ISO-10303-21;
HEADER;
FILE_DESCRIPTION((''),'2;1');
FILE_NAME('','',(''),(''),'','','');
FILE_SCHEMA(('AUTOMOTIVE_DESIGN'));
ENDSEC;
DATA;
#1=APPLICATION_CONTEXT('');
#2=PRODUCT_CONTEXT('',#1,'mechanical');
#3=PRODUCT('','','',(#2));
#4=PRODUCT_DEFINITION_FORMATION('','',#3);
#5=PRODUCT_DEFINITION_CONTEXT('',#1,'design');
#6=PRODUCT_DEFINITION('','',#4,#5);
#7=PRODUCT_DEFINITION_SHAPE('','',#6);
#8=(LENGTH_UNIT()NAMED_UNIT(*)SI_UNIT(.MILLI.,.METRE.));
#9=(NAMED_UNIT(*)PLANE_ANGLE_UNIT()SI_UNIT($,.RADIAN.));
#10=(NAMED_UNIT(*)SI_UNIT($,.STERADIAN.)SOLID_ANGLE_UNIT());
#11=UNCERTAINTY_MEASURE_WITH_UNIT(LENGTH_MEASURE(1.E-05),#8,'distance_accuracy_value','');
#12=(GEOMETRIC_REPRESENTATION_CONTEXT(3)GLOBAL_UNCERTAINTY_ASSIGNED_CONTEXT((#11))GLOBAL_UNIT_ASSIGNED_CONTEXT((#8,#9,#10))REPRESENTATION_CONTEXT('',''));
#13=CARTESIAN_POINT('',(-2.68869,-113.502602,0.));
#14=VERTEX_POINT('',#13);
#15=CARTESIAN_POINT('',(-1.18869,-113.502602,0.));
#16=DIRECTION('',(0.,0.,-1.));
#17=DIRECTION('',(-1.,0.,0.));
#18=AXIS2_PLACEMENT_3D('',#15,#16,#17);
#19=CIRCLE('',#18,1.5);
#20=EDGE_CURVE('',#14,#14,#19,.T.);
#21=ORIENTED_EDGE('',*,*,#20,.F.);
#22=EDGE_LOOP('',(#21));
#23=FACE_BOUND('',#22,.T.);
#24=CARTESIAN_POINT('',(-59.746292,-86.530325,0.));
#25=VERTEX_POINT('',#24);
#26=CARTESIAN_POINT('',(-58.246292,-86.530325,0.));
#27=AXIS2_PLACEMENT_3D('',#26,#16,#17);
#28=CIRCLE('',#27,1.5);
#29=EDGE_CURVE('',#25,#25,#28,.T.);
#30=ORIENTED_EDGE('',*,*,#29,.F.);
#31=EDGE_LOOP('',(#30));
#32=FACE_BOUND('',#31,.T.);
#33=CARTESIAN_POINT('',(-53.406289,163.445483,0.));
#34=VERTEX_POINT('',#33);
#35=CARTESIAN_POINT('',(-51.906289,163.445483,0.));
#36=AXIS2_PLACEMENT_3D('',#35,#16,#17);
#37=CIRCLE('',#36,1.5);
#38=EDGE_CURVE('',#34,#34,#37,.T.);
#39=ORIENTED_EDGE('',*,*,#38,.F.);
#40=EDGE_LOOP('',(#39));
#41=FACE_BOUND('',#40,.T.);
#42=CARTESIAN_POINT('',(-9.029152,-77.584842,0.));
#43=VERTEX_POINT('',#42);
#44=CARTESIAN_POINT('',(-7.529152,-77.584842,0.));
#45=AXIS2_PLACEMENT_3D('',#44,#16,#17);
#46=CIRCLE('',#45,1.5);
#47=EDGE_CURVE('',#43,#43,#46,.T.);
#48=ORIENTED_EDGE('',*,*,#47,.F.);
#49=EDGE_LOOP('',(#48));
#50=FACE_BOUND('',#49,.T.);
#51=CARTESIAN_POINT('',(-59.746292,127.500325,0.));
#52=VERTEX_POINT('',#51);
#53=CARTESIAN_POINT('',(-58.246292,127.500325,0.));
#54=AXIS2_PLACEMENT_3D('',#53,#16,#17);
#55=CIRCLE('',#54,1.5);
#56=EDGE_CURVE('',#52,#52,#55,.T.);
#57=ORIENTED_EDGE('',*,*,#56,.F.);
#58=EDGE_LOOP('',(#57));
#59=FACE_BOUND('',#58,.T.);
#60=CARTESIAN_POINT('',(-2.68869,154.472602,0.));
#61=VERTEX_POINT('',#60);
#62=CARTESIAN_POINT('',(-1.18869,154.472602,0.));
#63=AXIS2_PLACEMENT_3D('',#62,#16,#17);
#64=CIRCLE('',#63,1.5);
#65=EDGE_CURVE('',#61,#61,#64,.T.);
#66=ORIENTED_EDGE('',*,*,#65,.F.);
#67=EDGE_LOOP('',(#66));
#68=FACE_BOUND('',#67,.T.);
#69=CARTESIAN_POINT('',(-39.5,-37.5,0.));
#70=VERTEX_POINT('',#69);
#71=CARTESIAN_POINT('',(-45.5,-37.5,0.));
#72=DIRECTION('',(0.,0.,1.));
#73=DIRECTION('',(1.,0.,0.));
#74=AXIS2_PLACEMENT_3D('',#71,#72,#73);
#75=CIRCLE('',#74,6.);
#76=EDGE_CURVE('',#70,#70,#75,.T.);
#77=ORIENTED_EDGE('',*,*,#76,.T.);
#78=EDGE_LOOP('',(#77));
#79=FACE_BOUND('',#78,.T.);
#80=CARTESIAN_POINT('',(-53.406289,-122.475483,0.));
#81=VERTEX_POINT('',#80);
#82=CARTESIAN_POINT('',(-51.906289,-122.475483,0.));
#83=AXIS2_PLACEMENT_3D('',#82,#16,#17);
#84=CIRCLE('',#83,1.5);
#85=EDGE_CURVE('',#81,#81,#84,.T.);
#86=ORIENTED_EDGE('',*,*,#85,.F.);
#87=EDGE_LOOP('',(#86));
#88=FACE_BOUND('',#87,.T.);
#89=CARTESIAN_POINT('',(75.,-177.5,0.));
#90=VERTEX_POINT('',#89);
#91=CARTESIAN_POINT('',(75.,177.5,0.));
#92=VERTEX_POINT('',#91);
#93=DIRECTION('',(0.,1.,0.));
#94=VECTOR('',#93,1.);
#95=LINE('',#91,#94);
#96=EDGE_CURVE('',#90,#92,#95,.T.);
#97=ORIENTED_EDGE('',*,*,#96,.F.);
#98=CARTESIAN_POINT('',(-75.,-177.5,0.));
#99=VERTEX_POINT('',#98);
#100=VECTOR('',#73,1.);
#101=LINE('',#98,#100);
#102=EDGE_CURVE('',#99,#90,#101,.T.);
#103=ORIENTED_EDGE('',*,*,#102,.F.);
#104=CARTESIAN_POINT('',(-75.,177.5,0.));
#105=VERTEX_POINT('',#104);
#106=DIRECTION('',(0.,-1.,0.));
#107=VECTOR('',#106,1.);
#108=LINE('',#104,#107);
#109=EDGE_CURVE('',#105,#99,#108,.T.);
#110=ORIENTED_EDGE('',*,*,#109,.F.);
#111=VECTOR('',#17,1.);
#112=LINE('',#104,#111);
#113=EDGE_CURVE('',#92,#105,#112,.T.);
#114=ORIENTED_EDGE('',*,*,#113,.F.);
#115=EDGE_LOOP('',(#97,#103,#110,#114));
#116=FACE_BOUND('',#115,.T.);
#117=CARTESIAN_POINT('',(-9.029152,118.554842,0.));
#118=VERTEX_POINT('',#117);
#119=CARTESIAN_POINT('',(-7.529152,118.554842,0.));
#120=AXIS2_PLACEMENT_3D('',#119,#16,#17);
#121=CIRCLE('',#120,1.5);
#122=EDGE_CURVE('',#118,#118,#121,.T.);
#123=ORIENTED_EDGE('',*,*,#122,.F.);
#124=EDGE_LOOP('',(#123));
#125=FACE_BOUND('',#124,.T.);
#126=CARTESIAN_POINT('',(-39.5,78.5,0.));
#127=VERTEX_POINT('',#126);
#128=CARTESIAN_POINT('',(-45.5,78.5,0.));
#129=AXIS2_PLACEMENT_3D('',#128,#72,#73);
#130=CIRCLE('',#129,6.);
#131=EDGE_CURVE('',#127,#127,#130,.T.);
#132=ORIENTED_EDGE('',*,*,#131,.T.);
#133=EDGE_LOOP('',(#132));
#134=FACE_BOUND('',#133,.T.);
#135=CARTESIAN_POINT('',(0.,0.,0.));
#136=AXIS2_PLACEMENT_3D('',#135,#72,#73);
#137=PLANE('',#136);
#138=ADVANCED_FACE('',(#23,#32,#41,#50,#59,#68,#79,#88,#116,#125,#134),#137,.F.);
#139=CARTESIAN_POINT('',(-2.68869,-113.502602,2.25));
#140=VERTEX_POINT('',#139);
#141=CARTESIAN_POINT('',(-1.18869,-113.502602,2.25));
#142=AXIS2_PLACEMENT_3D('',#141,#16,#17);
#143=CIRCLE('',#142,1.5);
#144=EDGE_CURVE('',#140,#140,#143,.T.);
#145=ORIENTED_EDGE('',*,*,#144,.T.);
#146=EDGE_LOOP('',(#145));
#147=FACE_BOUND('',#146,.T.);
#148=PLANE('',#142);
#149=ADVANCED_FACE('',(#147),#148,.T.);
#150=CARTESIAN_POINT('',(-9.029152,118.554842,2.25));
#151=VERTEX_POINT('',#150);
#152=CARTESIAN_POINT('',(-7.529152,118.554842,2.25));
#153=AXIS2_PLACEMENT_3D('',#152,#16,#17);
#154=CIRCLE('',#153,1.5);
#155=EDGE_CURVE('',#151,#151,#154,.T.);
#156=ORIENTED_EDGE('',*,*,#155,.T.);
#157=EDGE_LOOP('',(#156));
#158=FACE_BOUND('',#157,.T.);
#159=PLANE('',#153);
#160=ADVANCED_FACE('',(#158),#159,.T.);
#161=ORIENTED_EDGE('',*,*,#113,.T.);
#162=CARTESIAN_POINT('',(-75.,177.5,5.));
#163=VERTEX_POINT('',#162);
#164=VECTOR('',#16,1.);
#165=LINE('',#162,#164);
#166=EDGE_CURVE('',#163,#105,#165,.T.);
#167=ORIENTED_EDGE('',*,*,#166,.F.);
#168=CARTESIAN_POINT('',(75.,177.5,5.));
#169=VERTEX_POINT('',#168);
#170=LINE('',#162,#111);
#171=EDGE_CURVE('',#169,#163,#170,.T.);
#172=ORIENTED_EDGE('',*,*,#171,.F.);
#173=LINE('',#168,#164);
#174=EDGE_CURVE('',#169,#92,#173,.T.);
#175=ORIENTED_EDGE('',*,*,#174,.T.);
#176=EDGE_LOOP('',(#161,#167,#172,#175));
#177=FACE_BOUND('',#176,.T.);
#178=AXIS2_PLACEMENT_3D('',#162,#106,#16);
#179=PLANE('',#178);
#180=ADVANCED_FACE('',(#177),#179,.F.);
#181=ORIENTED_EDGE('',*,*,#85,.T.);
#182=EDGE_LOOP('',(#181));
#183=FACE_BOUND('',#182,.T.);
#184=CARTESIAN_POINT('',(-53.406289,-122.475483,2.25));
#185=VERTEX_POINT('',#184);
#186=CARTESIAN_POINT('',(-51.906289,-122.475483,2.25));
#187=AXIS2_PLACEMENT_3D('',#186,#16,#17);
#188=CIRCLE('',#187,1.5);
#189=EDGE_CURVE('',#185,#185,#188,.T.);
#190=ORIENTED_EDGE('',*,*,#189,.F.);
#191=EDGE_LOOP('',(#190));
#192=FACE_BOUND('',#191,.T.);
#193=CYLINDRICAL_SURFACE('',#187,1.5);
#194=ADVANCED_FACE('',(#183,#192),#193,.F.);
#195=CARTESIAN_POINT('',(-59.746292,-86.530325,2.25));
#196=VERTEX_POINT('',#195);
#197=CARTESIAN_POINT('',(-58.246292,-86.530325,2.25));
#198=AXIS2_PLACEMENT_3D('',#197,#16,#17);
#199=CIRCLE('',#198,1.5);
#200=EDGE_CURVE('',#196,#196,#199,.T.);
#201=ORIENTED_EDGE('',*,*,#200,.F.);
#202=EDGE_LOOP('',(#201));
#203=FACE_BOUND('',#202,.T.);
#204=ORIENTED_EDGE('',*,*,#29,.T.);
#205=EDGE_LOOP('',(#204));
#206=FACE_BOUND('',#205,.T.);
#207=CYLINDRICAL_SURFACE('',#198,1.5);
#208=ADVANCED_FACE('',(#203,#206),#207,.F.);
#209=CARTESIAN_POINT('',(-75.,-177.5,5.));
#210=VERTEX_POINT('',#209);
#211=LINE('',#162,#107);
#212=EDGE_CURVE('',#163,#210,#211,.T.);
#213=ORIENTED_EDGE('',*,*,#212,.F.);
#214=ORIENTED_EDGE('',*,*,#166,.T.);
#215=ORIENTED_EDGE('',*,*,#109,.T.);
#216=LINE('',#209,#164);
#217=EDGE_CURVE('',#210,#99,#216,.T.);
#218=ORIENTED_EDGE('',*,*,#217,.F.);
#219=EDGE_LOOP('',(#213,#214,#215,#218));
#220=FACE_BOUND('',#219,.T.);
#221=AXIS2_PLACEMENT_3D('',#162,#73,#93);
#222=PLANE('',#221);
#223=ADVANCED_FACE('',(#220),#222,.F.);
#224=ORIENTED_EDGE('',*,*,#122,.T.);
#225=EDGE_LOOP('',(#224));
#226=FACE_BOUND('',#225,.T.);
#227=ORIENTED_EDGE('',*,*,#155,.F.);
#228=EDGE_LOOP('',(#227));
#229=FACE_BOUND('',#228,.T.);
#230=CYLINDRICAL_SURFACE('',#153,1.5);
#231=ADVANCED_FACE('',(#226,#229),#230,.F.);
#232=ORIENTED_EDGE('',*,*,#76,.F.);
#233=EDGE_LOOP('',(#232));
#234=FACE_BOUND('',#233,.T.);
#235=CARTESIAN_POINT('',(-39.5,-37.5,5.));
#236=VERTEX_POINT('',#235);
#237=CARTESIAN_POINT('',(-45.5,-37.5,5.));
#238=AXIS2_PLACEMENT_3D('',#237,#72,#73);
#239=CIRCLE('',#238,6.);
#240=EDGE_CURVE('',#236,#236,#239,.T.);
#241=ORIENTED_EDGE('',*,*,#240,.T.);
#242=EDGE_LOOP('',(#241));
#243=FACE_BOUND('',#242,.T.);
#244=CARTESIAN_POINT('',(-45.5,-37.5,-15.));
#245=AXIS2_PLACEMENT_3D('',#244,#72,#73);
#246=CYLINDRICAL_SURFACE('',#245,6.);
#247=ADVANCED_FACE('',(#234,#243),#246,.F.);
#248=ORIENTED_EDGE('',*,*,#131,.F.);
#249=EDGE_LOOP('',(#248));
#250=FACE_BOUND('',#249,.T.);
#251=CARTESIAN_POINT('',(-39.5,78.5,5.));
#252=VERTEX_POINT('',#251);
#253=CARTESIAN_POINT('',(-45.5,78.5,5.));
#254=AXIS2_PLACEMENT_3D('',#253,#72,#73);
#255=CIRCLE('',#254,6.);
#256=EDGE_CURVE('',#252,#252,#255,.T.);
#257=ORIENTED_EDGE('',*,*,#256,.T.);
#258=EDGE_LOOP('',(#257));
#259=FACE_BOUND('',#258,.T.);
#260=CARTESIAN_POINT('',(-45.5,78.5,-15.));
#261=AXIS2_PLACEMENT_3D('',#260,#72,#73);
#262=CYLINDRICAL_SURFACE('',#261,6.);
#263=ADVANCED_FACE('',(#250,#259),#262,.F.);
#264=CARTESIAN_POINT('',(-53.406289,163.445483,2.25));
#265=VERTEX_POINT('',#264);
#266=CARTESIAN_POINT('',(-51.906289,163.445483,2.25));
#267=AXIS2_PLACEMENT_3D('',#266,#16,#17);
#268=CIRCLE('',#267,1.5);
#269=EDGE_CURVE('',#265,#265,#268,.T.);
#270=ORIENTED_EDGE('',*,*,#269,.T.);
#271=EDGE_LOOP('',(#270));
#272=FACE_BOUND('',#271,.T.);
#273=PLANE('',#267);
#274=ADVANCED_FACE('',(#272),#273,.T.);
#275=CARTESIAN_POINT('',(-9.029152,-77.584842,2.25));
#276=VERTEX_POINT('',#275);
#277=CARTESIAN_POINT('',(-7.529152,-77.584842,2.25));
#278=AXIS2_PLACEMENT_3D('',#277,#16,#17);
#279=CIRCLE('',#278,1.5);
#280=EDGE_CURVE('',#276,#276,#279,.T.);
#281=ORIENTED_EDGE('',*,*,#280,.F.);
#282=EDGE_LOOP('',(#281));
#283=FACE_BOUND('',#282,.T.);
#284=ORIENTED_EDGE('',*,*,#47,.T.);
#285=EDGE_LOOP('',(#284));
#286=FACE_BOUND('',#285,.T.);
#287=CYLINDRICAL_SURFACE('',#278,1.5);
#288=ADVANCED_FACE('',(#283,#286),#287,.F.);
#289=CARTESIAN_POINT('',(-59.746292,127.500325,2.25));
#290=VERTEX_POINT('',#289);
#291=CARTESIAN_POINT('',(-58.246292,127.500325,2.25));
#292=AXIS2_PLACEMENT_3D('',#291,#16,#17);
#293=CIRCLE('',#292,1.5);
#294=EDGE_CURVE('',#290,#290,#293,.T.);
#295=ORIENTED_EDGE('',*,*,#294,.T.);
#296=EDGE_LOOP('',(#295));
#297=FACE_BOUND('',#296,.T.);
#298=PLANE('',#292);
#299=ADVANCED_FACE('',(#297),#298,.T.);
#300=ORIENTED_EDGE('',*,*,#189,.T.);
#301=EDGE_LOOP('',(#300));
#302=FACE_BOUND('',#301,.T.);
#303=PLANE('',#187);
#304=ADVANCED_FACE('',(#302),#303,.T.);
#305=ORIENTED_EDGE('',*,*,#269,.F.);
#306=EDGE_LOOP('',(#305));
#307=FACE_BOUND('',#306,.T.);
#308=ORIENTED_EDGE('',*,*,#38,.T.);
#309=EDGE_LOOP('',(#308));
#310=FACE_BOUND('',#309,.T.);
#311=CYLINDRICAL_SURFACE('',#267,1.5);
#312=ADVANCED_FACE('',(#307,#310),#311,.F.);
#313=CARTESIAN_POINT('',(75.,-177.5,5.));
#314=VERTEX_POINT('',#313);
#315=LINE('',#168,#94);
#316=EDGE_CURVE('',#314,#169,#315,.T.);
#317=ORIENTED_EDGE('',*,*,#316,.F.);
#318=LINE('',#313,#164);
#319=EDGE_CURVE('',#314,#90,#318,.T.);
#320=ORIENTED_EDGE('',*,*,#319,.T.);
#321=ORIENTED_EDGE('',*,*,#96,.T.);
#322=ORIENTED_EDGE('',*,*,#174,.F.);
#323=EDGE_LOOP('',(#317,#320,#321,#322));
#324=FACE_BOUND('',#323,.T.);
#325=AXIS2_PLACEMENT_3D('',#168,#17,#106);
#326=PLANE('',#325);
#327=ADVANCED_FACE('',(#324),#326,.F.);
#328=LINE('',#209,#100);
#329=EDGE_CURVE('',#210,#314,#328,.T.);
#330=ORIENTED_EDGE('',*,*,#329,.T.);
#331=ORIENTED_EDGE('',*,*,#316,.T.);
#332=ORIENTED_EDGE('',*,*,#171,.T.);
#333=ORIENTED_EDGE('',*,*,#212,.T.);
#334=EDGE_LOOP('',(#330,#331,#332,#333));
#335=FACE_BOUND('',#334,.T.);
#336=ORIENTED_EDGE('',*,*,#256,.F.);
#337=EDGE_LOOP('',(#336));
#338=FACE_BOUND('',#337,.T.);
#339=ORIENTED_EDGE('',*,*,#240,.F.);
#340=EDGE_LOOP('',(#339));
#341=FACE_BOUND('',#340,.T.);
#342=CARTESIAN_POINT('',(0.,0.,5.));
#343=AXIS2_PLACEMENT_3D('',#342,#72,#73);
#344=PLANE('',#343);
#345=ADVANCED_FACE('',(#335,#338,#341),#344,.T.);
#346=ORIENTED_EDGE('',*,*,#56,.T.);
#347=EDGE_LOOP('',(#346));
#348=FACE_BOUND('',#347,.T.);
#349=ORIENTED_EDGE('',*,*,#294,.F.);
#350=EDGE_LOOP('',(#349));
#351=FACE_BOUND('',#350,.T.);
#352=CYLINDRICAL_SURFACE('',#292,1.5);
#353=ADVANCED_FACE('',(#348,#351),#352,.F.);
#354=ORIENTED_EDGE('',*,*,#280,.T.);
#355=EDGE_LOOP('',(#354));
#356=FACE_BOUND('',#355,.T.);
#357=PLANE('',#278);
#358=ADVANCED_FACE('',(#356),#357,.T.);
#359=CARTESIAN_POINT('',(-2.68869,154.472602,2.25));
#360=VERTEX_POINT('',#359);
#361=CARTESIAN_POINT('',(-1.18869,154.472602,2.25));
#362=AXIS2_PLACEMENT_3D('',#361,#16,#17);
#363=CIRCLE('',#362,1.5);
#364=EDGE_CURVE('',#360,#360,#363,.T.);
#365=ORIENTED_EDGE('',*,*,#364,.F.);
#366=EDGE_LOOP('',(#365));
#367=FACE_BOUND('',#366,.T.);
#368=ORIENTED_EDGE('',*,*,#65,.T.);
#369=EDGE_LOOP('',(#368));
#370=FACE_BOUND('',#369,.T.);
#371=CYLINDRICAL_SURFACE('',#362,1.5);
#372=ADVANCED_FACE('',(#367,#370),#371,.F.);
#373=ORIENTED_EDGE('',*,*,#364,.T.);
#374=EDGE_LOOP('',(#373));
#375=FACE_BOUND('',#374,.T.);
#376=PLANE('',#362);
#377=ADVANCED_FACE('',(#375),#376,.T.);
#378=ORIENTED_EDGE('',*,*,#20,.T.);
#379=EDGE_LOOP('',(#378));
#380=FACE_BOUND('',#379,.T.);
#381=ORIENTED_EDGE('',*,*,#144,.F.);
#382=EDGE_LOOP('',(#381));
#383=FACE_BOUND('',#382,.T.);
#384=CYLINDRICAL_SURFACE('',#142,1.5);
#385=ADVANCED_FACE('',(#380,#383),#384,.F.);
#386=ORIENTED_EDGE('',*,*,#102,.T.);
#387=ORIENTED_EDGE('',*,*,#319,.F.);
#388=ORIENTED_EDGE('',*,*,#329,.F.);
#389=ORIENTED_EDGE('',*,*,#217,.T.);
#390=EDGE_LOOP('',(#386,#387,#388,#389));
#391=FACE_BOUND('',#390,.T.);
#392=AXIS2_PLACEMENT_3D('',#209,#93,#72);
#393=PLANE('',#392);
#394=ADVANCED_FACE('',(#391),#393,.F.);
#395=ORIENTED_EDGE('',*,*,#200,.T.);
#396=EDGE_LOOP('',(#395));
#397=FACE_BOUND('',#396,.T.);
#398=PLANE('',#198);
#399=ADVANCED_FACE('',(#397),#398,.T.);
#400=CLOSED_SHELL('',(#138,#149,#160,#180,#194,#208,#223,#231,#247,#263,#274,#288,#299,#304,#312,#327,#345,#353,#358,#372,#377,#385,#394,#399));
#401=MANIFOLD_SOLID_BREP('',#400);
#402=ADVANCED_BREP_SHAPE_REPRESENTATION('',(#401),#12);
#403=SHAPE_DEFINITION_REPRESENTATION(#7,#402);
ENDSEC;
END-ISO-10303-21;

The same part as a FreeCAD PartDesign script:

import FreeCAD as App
import Part
import Sketcher


def add_polygon(sketch, points):
    """Adds a closed chain of lines whose ends are joined by coincident constraints."""
    first, n = sketch.GeometryCount, len(points)
    for a, b in zip(points, points[1:] + points[:1]):
        sketch.addGeometry(Part.LineSegment(App.Vector(*a, 0), App.Vector(*b, 0)), False)
    for i in range(n):
        sketch.addConstraint(Sketcher.Constraint("Coincident", first + i, 2, first + (i + 1) % n, 1))

doc = App.newDocument("Part")
body = doc.addObject("PartDesign::Body", "Body")

# Sketch on XY plane
sketch1 = doc.addObject("Sketcher::SketchObject", "Sketch")
body.addObject(sketch1)
sketch1.AttachmentSupport = (doc.XY_Plane, [""])
sketch1.MapMode = "FlatFace"
add_polygon(sketch1, [(-75, 178), (-75, -178), (75, -178), (75, 178)])  # lines 0-3
sketch1.addConstraint([
    Sketcher.Constraint("Vertical", 0),
    Sketcher.Constraint("Horizontal", 1),
    Sketcher.Constraint("Vertical", 2),
    Sketcher.Constraint("Horizontal", 3),
    Sketcher.Constraint("Symmetric", 0, 2, 2, 2, -1, 1),
    Sketcher.Constraint("DistanceX", 1, 1, 1, 2, 150.0),
    Sketcher.Constraint("DistanceY", 0, 2, 0, 1, 355.0),
])
pad1 = doc.addObject("PartDesign::Pad", "Pad")
body.addObject(pad1)
pad1.Profile = sketch1
pad1.Length = 5

# Sketch on XY plane
sketch2 = doc.addObject("Sketcher::SketchObject", "Sketch001")
body.addObject(sketch2)
sketch2.AttachmentSupport = (doc.XY_Plane, [""])
sketch2.MapMode = "FlatFace"
sketch2.AttachmentOffset = App.Placement(App.Vector(0, 0, 5), App.Rotation())
sketch2.addGeometry([
    Part.Circle(App.Vector(-46, 78, 0), App.Vector(0, 0, 1), 6),
    Part.Circle(App.Vector(-46, -38, 0), App.Vector(0, 0, 1), 6),
], False)
sketch2.addConstraint([
    Sketcher.Constraint("Equal", 0, 1),
    Sketcher.Constraint("Vertical", 0, 3, 1, 3),
    Sketcher.Constraint("Diameter", 0, 12.0),
    Sketcher.Constraint("DistanceY", 1, 3, 0, 3, 116.0),
    Sketcher.Constraint("DistanceX", 0, 3, -1, 1, 45.5),
    Sketcher.Constraint("DistanceY", -1, 1, 0, 3, 78.5),
])
pocket1 = doc.addObject("PartDesign::Pocket", "Pocket")
body.addObject(pocket1)
pocket1.Profile = sketch2
pocket1.Length = 20

# Sketch on XY plane
sketch3 = doc.addObject("Sketcher::SketchObject", "Sketch002")
body.addObject(sketch3)
sketch3.AttachmentSupport = (doc.XY_Plane, [""])
sketch3.MapMode = "FlatFace"
sketch3.addGeometry([
    Part.Circle(App.Vector(-1.2, 154.5, 0), App.Vector(0, 0, 1), 1.5),  # 0
    Part.Circle(App.Vector(-51.9, 163.4, 0), App.Vector(0, 0, 1), 1.5),  # 1
    Part.Circle(App.Vector(-7.5, 118.6, 0), App.Vector(0, 0, 1), 1.5),  # 2
    Part.Circle(App.Vector(-58.2, 127.5, 0), App.Vector(0, 0, 1), 1.5),  # 3
    Part.Circle(App.Vector(-7.5, -77.6, 0), App.Vector(0, 0, 1), 1.5),  # 4
    Part.Circle(App.Vector(-58.2, -86.5, 0), App.Vector(0, 0, 1), 1.5),  # 5
    Part.Circle(App.Vector(-1.2, -113.5, 0), App.Vector(0, 0, 1), 1.5),  # 6
    Part.Circle(App.Vector(-51.9, -122.5, 0), App.Vector(0, 0, 1), 1.5),  # 7
], False)
sketch3.addConstraint([
    Sketcher.Constraint("Equal", 0, 1),
    Sketcher.Constraint("Equal", 1, 2),
    Sketcher.Constraint("Equal", 2, 3),
    Sketcher.Constraint("Equal", 3, 4),
    Sketcher.Constraint("Equal", 4, 5),
    Sketcher.Constraint("Equal", 5, 6),
    Sketcher.Constraint("Equal", 6, 7),
    Sketcher.Constraint("Vertical", 2, 3, 4, 3),
    Sketcher.Constraint("Vertical", 3, 3, 5, 3),
    Sketcher.Constraint("Vertical", 0, 3, 6, 3),
    Sketcher.Constraint("Vertical", 1, 3, 7, 3),
    Sketcher.Constraint("Diameter", 0, 3.0),
    Sketcher.Constraint("DistanceY", -1, 1, 0, 3, 154.472602),
    Sketcher.Constraint("DistanceY", 6, 3, -1, 1, 113.502602),
    Sketcher.Constraint("DistanceX", 1, 3, 0, 3, 50.717599),
    Sketcher.Constraint("DistanceX", 3, 3, 0, 3, 57.057602),
    Sketcher.Constraint("DistanceX", 0, 3, -1, 1, 1.18869),
    Sketcher.Constraint("DistanceX", 2, 3, -1, 1, 7.529152),
    Sketcher.Constraint("DistanceY", 0, 3, 1, 3, 8.972881),
    Sketcher.Constraint("DistanceY", 2, 3, 0, 3, 35.91776),
    Sketcher.Constraint("DistanceY", 5, 3, 3, 3, 214.03065),
    Sketcher.Constraint("DistanceY", 5, 3, 1, 3, 249.975808),
    Sketcher.Constraint("DistanceY", 6, 3, 4, 3, 35.91776),
    Sketcher.Constraint("DistanceY", 7, 3, 6, 3, 8.972881),
])
pocket2 = doc.addObject("PartDesign::Pocket", "Pocket001")
body.addObject(pocket2)
pocket2.Profile = sketch3
pocket2.Length = 2.25
pocket2.Reversed = True

doc.recompute()
